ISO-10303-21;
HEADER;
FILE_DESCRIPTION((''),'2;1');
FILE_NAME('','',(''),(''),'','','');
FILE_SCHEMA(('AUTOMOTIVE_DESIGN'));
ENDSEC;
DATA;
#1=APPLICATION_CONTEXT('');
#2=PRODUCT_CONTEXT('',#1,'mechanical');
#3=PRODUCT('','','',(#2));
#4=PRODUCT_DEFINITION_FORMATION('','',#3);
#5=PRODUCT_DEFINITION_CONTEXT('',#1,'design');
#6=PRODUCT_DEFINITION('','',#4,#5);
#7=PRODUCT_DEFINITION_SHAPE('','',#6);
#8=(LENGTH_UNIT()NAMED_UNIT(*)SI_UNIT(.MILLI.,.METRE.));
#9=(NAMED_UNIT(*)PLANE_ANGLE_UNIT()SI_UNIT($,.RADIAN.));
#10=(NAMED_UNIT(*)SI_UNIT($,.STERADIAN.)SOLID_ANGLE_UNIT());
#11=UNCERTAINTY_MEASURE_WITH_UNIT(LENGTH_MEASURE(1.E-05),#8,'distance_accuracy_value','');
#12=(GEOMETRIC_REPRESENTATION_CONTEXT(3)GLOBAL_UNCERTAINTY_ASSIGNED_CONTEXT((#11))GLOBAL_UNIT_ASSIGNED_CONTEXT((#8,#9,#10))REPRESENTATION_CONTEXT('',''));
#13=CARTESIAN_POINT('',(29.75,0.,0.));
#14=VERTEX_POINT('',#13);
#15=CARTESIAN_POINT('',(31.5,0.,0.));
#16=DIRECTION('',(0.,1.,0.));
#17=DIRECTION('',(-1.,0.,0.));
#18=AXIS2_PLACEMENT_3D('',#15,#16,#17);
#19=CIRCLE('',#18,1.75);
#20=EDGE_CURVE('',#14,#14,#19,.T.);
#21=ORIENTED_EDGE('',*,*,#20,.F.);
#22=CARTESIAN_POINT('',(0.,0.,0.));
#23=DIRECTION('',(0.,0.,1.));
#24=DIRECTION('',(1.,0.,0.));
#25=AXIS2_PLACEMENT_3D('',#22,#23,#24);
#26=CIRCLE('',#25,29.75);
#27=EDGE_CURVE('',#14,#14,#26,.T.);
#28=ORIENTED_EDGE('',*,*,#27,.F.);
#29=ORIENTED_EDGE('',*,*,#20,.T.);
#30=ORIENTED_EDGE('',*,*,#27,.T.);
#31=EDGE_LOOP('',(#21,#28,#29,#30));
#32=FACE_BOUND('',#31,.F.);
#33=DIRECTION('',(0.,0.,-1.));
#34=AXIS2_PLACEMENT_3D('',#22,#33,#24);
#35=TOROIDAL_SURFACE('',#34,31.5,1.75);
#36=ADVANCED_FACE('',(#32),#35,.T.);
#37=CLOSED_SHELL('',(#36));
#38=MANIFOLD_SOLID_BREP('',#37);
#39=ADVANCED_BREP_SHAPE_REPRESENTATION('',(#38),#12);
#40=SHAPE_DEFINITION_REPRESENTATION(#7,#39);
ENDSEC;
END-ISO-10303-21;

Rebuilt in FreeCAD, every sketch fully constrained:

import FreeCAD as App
import Part
import Sketcher

V = App.Vector
Q = App.Units.Quantity

doc = App.newDocument("Part")
body = doc.addObject("PartDesign::Body", "Body")

sketch1 = body.newObject("Sketcher::SketchObject", "Sketch")
sketch1.AttachmentSupport = (doc.getObject("XZ_Plane"), [""])
sketch1.MapMode = "FlatFace"
sketch1.addGeometry(Part.Circle(V(31.5, 0, 0), V(0, 0, 1), 1.8), False)
sketch1.addConstraint([
    Sketcher.Constraint("PointOnObject", 0, 3, -1),
    Sketcher.Constraint("Diameter", 0, Q("3.5 mm")),
    Sketcher.Constraint("DistanceX", -1, 1, 0, 3, Q("31.5 mm")),
])
revolution = body.newObject("PartDesign::Revolution", "Revolution")
revolution.Profile = sketch1
revolution.ReferenceAxis = (sketch1, ["V_Axis"])
revolution.Angle = 360

doc.recompute()
